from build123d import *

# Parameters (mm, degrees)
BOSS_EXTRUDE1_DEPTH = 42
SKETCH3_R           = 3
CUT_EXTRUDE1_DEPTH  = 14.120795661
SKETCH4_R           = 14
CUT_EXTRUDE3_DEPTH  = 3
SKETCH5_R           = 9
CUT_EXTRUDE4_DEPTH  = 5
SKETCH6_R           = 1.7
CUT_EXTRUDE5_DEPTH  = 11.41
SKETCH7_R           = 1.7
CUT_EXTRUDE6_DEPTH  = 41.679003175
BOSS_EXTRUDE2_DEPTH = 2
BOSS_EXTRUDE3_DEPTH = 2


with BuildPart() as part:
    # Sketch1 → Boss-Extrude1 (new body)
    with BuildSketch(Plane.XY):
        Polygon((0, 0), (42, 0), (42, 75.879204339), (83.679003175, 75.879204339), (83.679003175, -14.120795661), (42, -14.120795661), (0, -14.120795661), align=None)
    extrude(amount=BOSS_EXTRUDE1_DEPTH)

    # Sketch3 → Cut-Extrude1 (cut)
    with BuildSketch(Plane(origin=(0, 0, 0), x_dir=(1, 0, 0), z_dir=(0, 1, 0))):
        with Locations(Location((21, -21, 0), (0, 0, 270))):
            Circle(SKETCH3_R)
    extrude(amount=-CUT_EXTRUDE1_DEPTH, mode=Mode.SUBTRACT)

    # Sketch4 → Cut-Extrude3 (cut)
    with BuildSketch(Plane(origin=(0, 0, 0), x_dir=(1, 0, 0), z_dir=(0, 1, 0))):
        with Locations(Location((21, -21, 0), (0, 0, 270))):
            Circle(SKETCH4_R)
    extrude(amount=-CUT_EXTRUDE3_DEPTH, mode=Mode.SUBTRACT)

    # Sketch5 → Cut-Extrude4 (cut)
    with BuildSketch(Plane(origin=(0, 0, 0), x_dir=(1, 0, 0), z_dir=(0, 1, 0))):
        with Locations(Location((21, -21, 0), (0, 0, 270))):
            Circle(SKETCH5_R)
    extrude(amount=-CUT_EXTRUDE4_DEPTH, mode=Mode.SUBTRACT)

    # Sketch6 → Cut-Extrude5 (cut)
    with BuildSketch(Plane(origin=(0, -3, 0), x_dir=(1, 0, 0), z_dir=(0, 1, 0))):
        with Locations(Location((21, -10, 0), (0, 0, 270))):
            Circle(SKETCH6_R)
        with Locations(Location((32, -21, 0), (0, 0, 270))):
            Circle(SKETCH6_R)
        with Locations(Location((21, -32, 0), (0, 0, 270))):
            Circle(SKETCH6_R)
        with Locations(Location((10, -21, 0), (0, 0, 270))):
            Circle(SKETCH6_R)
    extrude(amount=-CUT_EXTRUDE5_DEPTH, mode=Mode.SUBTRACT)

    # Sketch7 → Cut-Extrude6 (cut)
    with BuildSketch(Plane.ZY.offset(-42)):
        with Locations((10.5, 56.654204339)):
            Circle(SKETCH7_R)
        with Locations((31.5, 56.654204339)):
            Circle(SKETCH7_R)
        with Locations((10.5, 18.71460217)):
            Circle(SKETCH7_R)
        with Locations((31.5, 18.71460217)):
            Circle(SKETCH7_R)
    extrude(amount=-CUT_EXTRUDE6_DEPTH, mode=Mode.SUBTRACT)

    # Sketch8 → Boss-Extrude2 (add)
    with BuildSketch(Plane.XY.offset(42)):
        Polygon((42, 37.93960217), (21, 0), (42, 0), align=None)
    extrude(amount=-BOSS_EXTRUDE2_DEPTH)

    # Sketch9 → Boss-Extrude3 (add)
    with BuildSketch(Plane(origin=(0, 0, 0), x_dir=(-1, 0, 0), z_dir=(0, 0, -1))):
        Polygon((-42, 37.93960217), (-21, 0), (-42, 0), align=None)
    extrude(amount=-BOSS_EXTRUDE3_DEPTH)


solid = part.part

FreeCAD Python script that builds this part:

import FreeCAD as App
import Part
import Sketcher
from FreeCAD import Vector
Q = App.Units.Quantity

doc = App.newDocument("Part")
body = doc.addObject("PartDesign::Body", "Body")

# Sketch on XY plane
sketch1 = body.newObject("Sketcher::SketchObject", "Sketch")
sketch1.AttachmentSupport = (doc.getObject("XY_Plane"), [""])
sketch1.MapMode = "FlatFace"
sketch1.addGeometry([
    Part.LineSegment(Vector(42, 0, 0), Vector(0, 0, 0)),  # 0
    Part.LineSegment(Vector(0, 0, 0), Vector(0, -14, 0)),  # 1
    Part.LineSegment(Vector(0, -14, 0), Vector(84, -14, 0)),  # 2
    Part.LineSegment(Vector(84, -14, 0), Vector(84, 76, 0)),  # 3
    Part.LineSegment(Vector(84, 76, 0), Vector(42, 76, 0)),  # 4
    Part.LineSegment(Vector(42, 76, 0), Vector(42, 0, 0)),  # 5
], False)
sketch1.addConstraint([
    Sketcher.Constraint("Coincident", 0, 2, 1, 1),
    Sketcher.Constraint("Coincident", 1, 2, 2, 1),
    Sketcher.Constraint("Coincident", 2, 2, 3, 1),
    Sketcher.Constraint("Coincident", 3, 2, 4, 1),
    Sketcher.Constraint("Coincident", 4, 2, 5, 1),
    Sketcher.Constraint("Coincident", 5, 2, 0, 1),
    Sketcher.Constraint("Horizontal", 0),
    Sketcher.Constraint("Vertical", 1),
    Sketcher.Constraint("Horizontal", 2),
    Sketcher.Constraint("Vertical", 3),
    Sketcher.Constraint("Horizontal", 4),
    Sketcher.Constraint("Vertical", 5),
    Sketcher.Constraint("Coincident", 0, 2, -1, 1),
    Sketcher.Constraint("DistanceX", 0, 2, 0, 1, Q("42 mm")),
    Sketcher.Constraint("DistanceY", 3, 1, 3, 2, Q("90 mm")),
    Sketcher.Constraint("DistanceX", 2, 1, 2, 2, Q("83.679003 mm")),
    Sketcher.Constraint("DistanceY", 1, 2, 1, 1, Q("14.120796 mm")),
])
pad1 = body.newObject("PartDesign::Pad", "Pad")
pad1.Profile = sketch1
pad1.Length = 42

# Sketch on XZ plane
sketch2 = body.newObject("Sketcher::SketchObject", "Sketch001")
sketch2.AttachmentSupport = (doc.getObject("XZ_Plane"), [""])
sketch2.MapMode = "FlatFace"
sketch2.addGeometry(Part.Circle(Vector(21, 21, 0), Vector(0, 0, 1), 3), False)
sketch2.addConstraint([
    Sketcher.Constraint("Diameter", 0, Q("6 mm")),
    Sketcher.Constraint("DistanceX", -1, 1, 0, 3, Q("21 mm")),
    Sketcher.Constraint("DistanceY", -1, 1, 0, 3, Q("21 mm")),
])
pocket1 = body.newObject("PartDesign::Pocket", "Pocket")
pocket1.Profile = sketch2
pocket1.Length = 14.120796
pocket1.Reversed = True

# Sketch on XZ plane
sketch3 = body.newObject("Sketcher::SketchObject", "Sketch002")
sketch3.AttachmentSupport = (doc.getObject("XZ_Plane"), [""])
sketch3.MapMode = "FlatFace"
sketch3.addGeometry(Part.Circle(Vector(21, 21, 0), Vector(0, 0, 1), 14), False)
sketch3.addConstraint([
    Sketcher.Constraint("Diameter", 0, Q("28 mm")),
    Sketcher.Constraint("DistanceX", -1, 1, 0, 3, Q("21 mm")),
    Sketcher.Constraint("DistanceY", -1, 1, 0, 3, Q("21 mm")),
])
pocket2 = body.newObject("PartDesign::Pocket", "Pocket001")
pocket2.Profile = sketch3
pocket2.Length = 3
pocket2.Reversed = True

# Sketch on XZ plane
sketch4 = body.newObject("Sketcher::SketchObject", "Sketch003")
sketch4.AttachmentSupport = (doc.getObject("XZ_Plane"), [""])
sketch4.MapMode = "FlatFace"
sketch4.addGeometry(Part.Circle(Vector(21, 21, 0), Vector(0, 0, 1), 9), False)
sketch4.addConstraint([
    Sketcher.Constraint("Diameter", 0, Q("18 mm")),
    Sketcher.Constraint("DistanceX", -1, 1, 0, 3, Q("21 mm")),
    Sketcher.Constraint("DistanceY", -1, 1, 0, 3, Q("21 mm")),
])
pocket3 = body.newObject("PartDesign::Pocket", "Pocket002")
pocket3.Profile = sketch4
pocket3.Length = 5
pocket3.Reversed = True

# Sketch on XZ plane
sketch5 = body.newObject("Sketcher::SketchObject", "Sketch004")
sketch5.AttachmentSupport = (doc.getObject("XZ_Plane"), [""])
sketch5.MapMode = "FlatFace"
sketch5.AttachmentOffset = App.Placement(Vector(0, 0, 3), App.Rotation())
sketch5.addGeometry([
    Part.Circle(Vector(21, 10, 0), Vector(0, 0, 1), 1.7),
    Part.Circle(Vector(32, 21, 0), Vector(0, 0, 1), 1.7),
    Part.Circle(Vector(21, 32, 0), Vector(0, 0, 1), 1.7),
    Part.Circle(Vector(10, 21, 0), Vector(0, 0, 1), 1.7),
], False)
sketch5.addConstraint([
    Sketcher.Constraint("Equal", 0, 1),
    Sketcher.Constraint("Equal", 1, 2),
    Sketcher.Constraint("Equal", 2, 3),
    Sketcher.Constraint("Horizontal", 1, 3, 3, 3),
    Sketcher.Constraint("Vertical", 0, 3, 2, 3),
    Sketcher.Constraint("Diameter", 0, Q("3.4 mm")),
    Sketcher.Constraint("DistanceX", -1, 1, 0, 3, Q("21 mm")),
    Sketcher.Constraint("DistanceY", -1, 1, 0, 3, Q("10 mm")),
    Sketcher.Constraint("DistanceX", -1, 1, 1, 3, Q("32 mm")),
    Sketcher.Constraint("DistanceY", -1, 1, 1, 3, Q("21 mm")),
    Sketcher.Constraint("DistanceY", -1, 1, 2, 3, Q("32 mm")),
    Sketcher.Constraint("DistanceX", -1, 1, 3, 3, Q("10 mm")),
])
pocket4 = body.newObject("PartDesign::Pocket", "Pocket003")
pocket4.Profile = sketch5
pocket4.Length = 11.41
pocket4.Reversed = True

# Sketch on YZ plane
sketch6 = body.newObject("Sketcher::SketchObject", "Sketch005")
sketch6.AttachmentSupport = (doc.getObject("YZ_Plane"), [""])
sketch6.MapMode = "FlatFace"
sketch6.AttachmentOffset = App.Placement(Vector(0, 0, 42), App.Rotation())
sketch6.addGeometry([
    Part.Circle(Vector(56.7, 10.5, 0), Vector(0, 0, 1), 1.7),
    Part.Circle(Vector(56.7, 31.5, 0), Vector(0, 0, 1), 1.7),
    Part.Circle(Vector(18.7, 10.5, 0), Vector(0, 0, 1), 1.7),
    Part.Circle(Vector(18.7, 31.5, 0), Vector(0, 0, 1), 1.7),
], False)
sketch6.addConstraint([
    Sketcher.Constraint("Equal", 0, 1),
    Sketcher.Constraint("Equal", 1, 2),
    Sketcher.Constraint("Equal", 2, 3),
    Sketcher.Constraint("Horizontal", 0, 3, 2, 3),
    Sketcher.Constraint("Horizontal", 1, 3, 3, 3),
    Sketcher.Constraint("Vertical", 0, 3, 1, 3),
    Sketcher.Constraint("Vertical", 2, 3, 3, 3),
    Sketcher.Constraint("Diameter", 0, Q("3.4 mm")),
    Sketcher.Constraint("DistanceY", 0, 3, 1, 3, Q("21 mm")),
    Sketcher.Constraint("DistanceY", -1, 1, 0, 3, Q("10.5 mm")),
    Sketcher.Constraint("DistanceX", -1, 1, 0, 3, Q("56.654204 mm")),
    Sketcher.Constraint("DistanceX", -1, 1, 2, 3, Q("18.714602 mm")),
])
pocket5 = body.newObject("PartDesign::Pocket", "Pocket004")
pocket5.Profile = sketch6
pocket5.Length = 41.679003
pocket5.Reversed = True

# Sketch on XY plane
sketch7 = body.newObject("Sketcher::SketchObject", "Sketch006")
sketch7.AttachmentSupport = (doc.getObject("XY_Plane"), [""])
sketch7.MapMode = "FlatFace"
sketch7.AttachmentOffset = App.Placement(Vector(0, 0, 42), App.Rotation())
sketch7.addGeometry([
    Part.LineSegment(Vector(42, 38, 0), Vector(21, 0, 0)),
    Part.LineSegment(Vector(21, 0, 0), Vector(42, 0, 0)),
    Part.LineSegment(Vector(42, 0, 0), Vector(42, 38, 0)),
], False)
sketch7.addConstraint([
    Sketcher.Constraint("Coincident", 0, 2, 1, 1),
    Sketcher.Constraint("Coincident", 1, 2, 2, 1),
    Sketcher.Constraint("Coincident", 2, 2, 0, 1),
    Sketcher.Constraint("Horizontal", 1),
    Sketcher.Constraint("Vertical", 2),
    Sketcher.Constraint("PointOnObject", 0, 2, -1),
    Sketcher.Constraint("DistanceX", 1, 1, 1, 2, Q("21 mm")),
    Sketcher.Constraint("DistanceX", -1, 1, 0, 2, Q("21 mm")),
    Sketcher.Constraint("DistanceY", 2, 1, 2, 2, Q("37.939602 mm")),
])
pad2 = body.newObject("PartDesign::Pad", "Pad001")
pad2.Profile = sketch7
pad2.Length = 2
pad2.Reversed = True

# Sketch on XY plane
sketch8 = body.newObject("Sketcher::SketchObject", "Sketch007")
sketch8.AttachmentSupport = (doc.getObject("XY_Plane"), [""])
sketch8.MapMode = "FlatFace"
sketch8.addGeometry([
    Part.LineSegment(Vector(21, 0, 0), Vector(42, 38, 0)),
    Part.LineSegment(Vector(42, 38, 0), Vector(42, 0, 0)),
    Part.LineSegment(Vector(42, 0, 0), Vector(21, 0, 0)),
], False)
sketch8.addConstraint([
    Sketcher.Constraint("Coincident", 0, 2, 1, 1),
    Sketcher.Constraint("Coincident", 1, 2, 2, 1),
    Sketcher.Constraint("Coincident", 2, 2, 0, 1),
    Sketcher.Constraint("Vertical", 1),
    Sketcher.Constraint("Horizontal", 2),
    Sketcher.Constraint("PointOnObject", 1, 2, -1),
    Sketcher.Constraint("DistanceX", 2, 2, 2, 1, Q("21 mm")),
    Sketcher.Constraint("DistanceX", -1, 1, 0, 2, Q("42 mm")),
    Sketcher.Constraint("DistanceY", 1, 2, 1, 1, Q("37.939602 mm")),
])
pad3 = body.newObject("PartDesign::Pad", "Pad002")
pad3.Profile = sketch8
pad3.Length = 2

doc.recompute()
